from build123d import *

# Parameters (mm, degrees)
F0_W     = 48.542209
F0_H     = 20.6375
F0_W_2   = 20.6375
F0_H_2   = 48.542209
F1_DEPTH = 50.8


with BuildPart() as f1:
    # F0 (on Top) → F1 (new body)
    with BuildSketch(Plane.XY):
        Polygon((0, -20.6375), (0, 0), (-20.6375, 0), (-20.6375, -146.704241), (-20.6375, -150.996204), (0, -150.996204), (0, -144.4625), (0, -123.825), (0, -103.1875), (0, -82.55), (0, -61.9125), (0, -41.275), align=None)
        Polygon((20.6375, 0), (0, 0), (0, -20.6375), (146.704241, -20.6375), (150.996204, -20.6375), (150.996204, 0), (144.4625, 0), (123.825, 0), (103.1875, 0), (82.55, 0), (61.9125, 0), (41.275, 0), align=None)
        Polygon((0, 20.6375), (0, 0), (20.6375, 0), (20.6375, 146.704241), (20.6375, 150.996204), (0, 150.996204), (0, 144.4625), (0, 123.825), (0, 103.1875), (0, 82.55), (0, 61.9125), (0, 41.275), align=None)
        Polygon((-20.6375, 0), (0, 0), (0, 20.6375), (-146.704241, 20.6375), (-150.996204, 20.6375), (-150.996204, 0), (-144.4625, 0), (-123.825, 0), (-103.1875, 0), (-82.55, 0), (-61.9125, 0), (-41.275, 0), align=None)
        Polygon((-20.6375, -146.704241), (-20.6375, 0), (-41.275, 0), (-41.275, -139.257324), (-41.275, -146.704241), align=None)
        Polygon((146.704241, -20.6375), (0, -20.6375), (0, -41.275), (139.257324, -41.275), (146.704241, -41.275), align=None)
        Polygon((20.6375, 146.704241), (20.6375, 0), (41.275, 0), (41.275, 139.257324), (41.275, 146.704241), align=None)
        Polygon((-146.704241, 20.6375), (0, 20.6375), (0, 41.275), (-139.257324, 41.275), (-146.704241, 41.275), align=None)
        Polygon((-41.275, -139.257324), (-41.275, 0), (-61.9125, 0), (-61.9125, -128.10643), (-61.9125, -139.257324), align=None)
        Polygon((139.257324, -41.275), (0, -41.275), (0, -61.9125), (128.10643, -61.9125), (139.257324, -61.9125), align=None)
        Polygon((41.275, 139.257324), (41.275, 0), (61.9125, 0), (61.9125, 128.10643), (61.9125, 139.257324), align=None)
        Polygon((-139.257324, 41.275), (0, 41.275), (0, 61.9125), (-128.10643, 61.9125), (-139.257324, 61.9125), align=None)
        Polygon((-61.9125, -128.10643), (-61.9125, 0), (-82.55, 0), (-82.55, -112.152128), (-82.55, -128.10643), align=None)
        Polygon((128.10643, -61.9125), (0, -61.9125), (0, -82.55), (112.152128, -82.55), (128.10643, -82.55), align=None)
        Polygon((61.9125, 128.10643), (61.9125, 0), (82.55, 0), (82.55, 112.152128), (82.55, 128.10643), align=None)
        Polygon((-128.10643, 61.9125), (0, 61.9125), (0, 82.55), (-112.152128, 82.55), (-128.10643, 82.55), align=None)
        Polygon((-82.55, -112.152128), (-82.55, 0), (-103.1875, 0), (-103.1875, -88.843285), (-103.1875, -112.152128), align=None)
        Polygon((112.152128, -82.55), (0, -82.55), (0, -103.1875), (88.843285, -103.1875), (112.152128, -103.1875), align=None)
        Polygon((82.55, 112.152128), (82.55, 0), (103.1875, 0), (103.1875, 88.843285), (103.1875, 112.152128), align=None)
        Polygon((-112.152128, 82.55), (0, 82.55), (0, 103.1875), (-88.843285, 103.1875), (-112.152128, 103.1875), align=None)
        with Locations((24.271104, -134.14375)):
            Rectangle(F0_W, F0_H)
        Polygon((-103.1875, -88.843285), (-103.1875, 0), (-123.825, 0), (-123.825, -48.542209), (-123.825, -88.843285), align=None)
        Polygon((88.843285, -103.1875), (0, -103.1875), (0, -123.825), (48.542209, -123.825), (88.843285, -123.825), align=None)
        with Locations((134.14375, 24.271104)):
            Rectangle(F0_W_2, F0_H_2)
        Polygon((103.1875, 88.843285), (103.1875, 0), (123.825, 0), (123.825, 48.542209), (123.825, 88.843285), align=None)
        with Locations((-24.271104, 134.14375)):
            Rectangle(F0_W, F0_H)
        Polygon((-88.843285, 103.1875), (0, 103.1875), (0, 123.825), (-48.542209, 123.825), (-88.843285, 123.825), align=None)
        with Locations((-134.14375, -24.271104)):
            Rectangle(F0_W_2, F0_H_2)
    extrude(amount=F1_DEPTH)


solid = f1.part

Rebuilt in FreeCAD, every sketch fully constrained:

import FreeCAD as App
import Part
import Sketcher
from FreeCAD import Vector
Q = App.Units.Quantity


def add_polygon(sketch, points):
    """Adds a closed chain of lines whose ends are joined by coincident constraints."""
    first, n = sketch.GeometryCount, len(points)
    for a, b in zip(points, points[1:] + points[:1]):
        sketch.addGeometry(Part.LineSegment(App.Vector(*a, 0), App.Vector(*b, 0)), False)
    for i in range(n):
        sketch.addConstraint(Sketcher.Constraint("Coincident", first + i, 2, first + (i + 1) % n, 1))

doc = App.newDocument("Part")
body = doc.addObject("PartDesign::Body", "Body")

# Sketch on XY plane
sketch1 = body.newObject("Sketcher::SketchObject", "Sketch")
sketch1.AttachmentSupport = (doc.getObject("XY_Plane"), [""])
sketch1.MapMode = "FlatFace"
add_polygon(sketch1, [(-61.9125, -128.10643), (-61.9125, -139.257324), (-41.275, -139.257324), (-41.275, -146.704241), (-20.6375, -146.704241), (-20.6375, -150.996204), (0, -150.996204), (0, -144.4625), (48.542209, -144.4625), (48.542209, -123.825), (88.843285, -123.825), (88.843285, -103.1875), (112.152128, -103.1875), (112.152128, -82.55), (128.10643, -82.55), (128.10643, -61.9125), (139.257324, -61.9125), (139.257324, -41.275), (146.704241, -41.275), (146.704241, -20.6375), (150.996204, -20.6375), (150.996204, 0), (144.4625, 0), (144.4625, 48.542209), (123.825, 48.542209), (123.825, 88.843285), (103.1875, 88.843285), (103.1875, 112.152128), (82.55, 112.152128), (82.55, 128.10643), (61.9125, 128.10643), (61.9125, 139.257324), (41.275, 139.257324), (41.275, 146.704241), (20.6375, 146.704241), (20.6375, 150.996204), (0, 150.996204), (0, 144.4625), (-48.542209, 144.4625), (-48.542209, 123.825), (-88.843285, 123.825), (-88.843285, 103.1875), (-112.152128, 103.1875), (-112.152128, 82.55), (-128.10643, 82.55), (-128.10643, 61.9125), (-139.257324, 61.9125), (-139.257324, 41.275), (-146.704241, 41.275), (-146.704241, 20.6375), (-150.996204, 20.6375), (-150.996204, 0), (-144.4625, 0), (-144.4625, -48.542209), (-123.825, -48.542209), (-123.825, -88.843285), (-103.1875, -88.843285), (-103.1875, -112.152128), (-82.55, -112.152128), (-82.55, -128.10643)])  # lines 0-59
sketch1.addConstraint([
    Sketcher.Constraint("Vertical", 0),
    Sketcher.Constraint("Horizontal", 1),
    Sketcher.Constraint("Vertical", 2),
    Sketcher.Constraint("Horizontal", 3),
    Sketcher.Constraint("Vertical", 4),
    Sketcher.Constraint("Horizontal", 5),
    Sketcher.Constraint("Vertical", 6),
    Sketcher.Constraint("Horizontal", 7),
    Sketcher.Constraint("Vertical", 8),
    Sketcher.Constraint("Horizontal", 9),
    Sketcher.Constraint("Vertical", 10),
    Sketcher.Constraint("Horizontal", 11),
    Sketcher.Constraint("Vertical", 12),
    Sketcher.Constraint("Horizontal", 13),
    Sketcher.Constraint("Vertical", 14),
    Sketcher.Constraint("Horizontal", 15),
    Sketcher.Constraint("Vertical", 16),
    Sketcher.Constraint("Horizontal", 17),
    Sketcher.Constraint("Vertical", 18),
    Sketcher.Constraint("Horizontal", 19),
    Sketcher.Constraint("Vertical", 20),
    Sketcher.Constraint("Horizontal", 21),
    Sketcher.Constraint("Vertical", 22),
    Sketcher.Constraint("Horizontal", 23),
    Sketcher.Constraint("Vertical", 24),
    Sketcher.Constraint("Horizontal", 25),
    Sketcher.Constraint("Vertical", 26),
    Sketcher.Constraint("Horizontal", 27),
    Sketcher.Constraint("Vertical", 28),
    Sketcher.Constraint("Horizontal", 29),
    Sketcher.Constraint("Vertical", 30),
    Sketcher.Constraint("Horizontal", 31),
    Sketcher.Constraint("Vertical", 32),
    Sketcher.Constraint("Horizontal", 33),
    Sketcher.Constraint("Vertical", 34),
    Sketcher.Constraint("Horizontal", 35),
    Sketcher.Constraint("Vertical", 36),
    Sketcher.Constraint("Horizontal", 37),
    Sketcher.Constraint("Vertical", 38),
    Sketcher.Constraint("Horizontal", 39),
    Sketcher.Constraint("Vertical", 40),
    Sketcher.Constraint("Horizontal", 41),
    Sketcher.Constraint("Vertical", 42),
    Sketcher.Constraint("Horizontal", 43),
    Sketcher.Constraint("Vertical", 44),
    Sketcher.Constraint("Horizontal", 45),
    Sketcher.Constraint("Vertical", 46),
    Sketcher.Constraint("Horizontal", 47),
    Sketcher.Constraint("Vertical", 48),
    Sketcher.Constraint("Horizontal", 49),
    Sketcher.Constraint("Vertical", 50),
    Sketcher.Constraint("Horizontal", 51),
    Sketcher.Constraint("Vertical", 52),
    Sketcher.Constraint("Horizontal", 53),
    Sketcher.Constraint("Vertical", 54),
    Sketcher.Constraint("Horizontal", 55),
    Sketcher.Constraint("Vertical", 56),
    Sketcher.Constraint("Horizontal", 57),
    Sketcher.Constraint("Vertical", 58),
    Sketcher.Constraint("Horizontal", 59),
    Sketcher.Constraint("Symmetric", 0, 2, 30, 2, -1, 1),
    Sketcher.Constraint("Symmetric", 2, 2, 32, 2, -1, 1),
    Sketcher.Constraint("Symmetric", 4, 2, 34, 2, -1, 1),
    Sketcher.Constraint("Symmetric", 6, 2, 36, 2, -1, 1),
    Sketcher.Constraint("Symmetric", 8, 2, 38, 2, -1, 1),
    Sketcher.Constraint("Symmetric", 10, 2, 40, 2, -1, 1),
    Sketcher.Constraint("Symmetric", 12, 2, 42, 2, -1, 1),
    Sketcher.Constraint("Symmetric", 14, 2, 44, 2, -1, 1),
    Sketcher.Constraint("Symmetric", 16, 2, 46, 2, -1, 1),
    Sketcher.Constraint("Symmetric", 18, 2, 48, 2, -1, 1),
    Sketcher.Constraint("Symmetric", 20, 2, 50, 2, -1, 1),
    Sketcher.Constraint("Symmetric", 22, 2, 52, 2, -1, 1),
    Sketcher.Constraint("Symmetric", 24, 2, 54, 2, -1, 1),
    Sketcher.Constraint("Symmetric", 26, 2, 56, 2, -1, 1),
    Sketcher.Constraint("Symmetric", 28, 2, 58, 2, -1, 1),
    Sketcher.Constraint("PointOnObject", 5, 2, -2),
    Sketcher.Constraint("PointOnObject", 20, 2, -1),
    Sketcher.Constraint("Equal", 1, 3),
    Sketcher.Constraint("Equal", 3, 5),
    Sketcher.Constraint("Equal", 5, 23),
    Sketcher.Constraint("Equal", 23, 25),
    Sketcher.Constraint("Equal", 25, 27),
    Sketcher.Constraint("Equal", 27, 29),
    Sketcher.Constraint("Equal", 45, 0),
    Sketcher.Constraint("Equal", 47, 2),
    Sketcher.Constraint("Equal", 49, 4),
    Sketcher.Constraint("Equal", 51, 6),
    Sketcher.Constraint("Equal", 59, 8),
    Sketcher.Constraint("Equal", 8, 10),
    Sketcher.Constraint("Equal", 10, 12),
    Sketcher.Constraint("Equal", 12, 14),
    Sketcher.Constraint("Equal", 14, 16),
    Sketcher.Constraint("Equal", 16, 18),
    Sketcher.Constraint("Equal", 18, 20),
    Sketcher.Constraint("Equal", 37, 22),
    Sketcher.Constraint("Equal", 39, 24),
    Sketcher.Constraint("Equal", 41, 26),
    Sketcher.Constraint("DistanceX", 1, 1, 1, 2, Q("0.8125 in")),
    Sketcher.Constraint("DistanceX", 13, 1, 13, 2, 15.954302),
    Sketcher.Constraint("DistanceX", 7, 1, 7, 2, 48.542209),
    Sketcher.Constraint("DistanceX", 9, 1, 9, 2, 40.301076),
    Sketcher.Constraint("DistanceX", 11, 1, 11, 2, 23.308843),
    Sketcher.Constraint("DistanceX", 15, 1, 15, 2, 11.150894),
    Sketcher.Constraint("DistanceX", 17, 1, 17, 2, 7.446917),
    Sketcher.Constraint("DistanceX", 19, 1, 19, 2, 4.291963),
])
pad1 = body.newObject("PartDesign::Pad", "Pad")
pad1.Profile = sketch1
pad1.Length = Q("2 in")

doc.recompute()
